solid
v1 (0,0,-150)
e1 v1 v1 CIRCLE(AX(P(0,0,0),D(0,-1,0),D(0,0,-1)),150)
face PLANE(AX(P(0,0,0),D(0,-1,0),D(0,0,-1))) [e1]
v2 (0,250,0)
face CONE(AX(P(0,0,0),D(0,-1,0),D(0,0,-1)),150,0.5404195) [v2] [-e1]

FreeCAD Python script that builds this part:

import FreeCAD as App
import Part
import Sketcher

V = App.Vector
Q = App.Units.Quantity

doc = App.newDocument("Part")
body = doc.addObject("PartDesign::Body", "Body")

# Sketch on XY plane
sketch1 = body.newObject("Sketcher::SketchObject", "Sketch")
sketch1.AttachmentSupport = (doc.getObject("XY_Plane"), [""])
sketch1.MapMode = "FlatFace"
sketch1.addGeometry(Part.LineSegment(V(0, 0, 0), V(150, 0, 0)), False)
sketch1.addGeometry(Part.LineSegment(V(150, 0, 0), V(0, 250, 0)), False)
sketch1.addGeometry(Part.LineSegment(V(0, 250, 0), V(0, 0, 0)), False)
sketch1.addConstraint(Sketcher.Constraint("Coincident", 0, 2, 1, 1))
sketch1.addConstraint(Sketcher.Constraint("Coincident", 1, 2, 2, 1))
sketch1.addConstraint(Sketcher.Constraint("Coincident", 2, 2, 0, 1))
sketch1.addConstraint(Sketcher.Constraint("Horizontal", 0))
sketch1.addConstraint(Sketcher.Constraint("Vertical", 2))
sketch1.addConstraint(Sketcher.Constraint("Coincident", 2, 2, -1, 1))
sketch1.addConstraint(Sketcher.Constraint("DistanceX", 0, 1, 0, 2, Q("150 mm")))
sketch1.addConstraint(Sketcher.Constraint("DistanceY", 2, 2, 2, 1, Q("250 mm")))
revolution = body.newObject("PartDesign::Revolution", "Revolution")
revolution.Profile = sketch1
revolution.ReferenceAxis = (sketch1, ["V_Axis"])
revolution.Angle = 360

doc.recompute()
